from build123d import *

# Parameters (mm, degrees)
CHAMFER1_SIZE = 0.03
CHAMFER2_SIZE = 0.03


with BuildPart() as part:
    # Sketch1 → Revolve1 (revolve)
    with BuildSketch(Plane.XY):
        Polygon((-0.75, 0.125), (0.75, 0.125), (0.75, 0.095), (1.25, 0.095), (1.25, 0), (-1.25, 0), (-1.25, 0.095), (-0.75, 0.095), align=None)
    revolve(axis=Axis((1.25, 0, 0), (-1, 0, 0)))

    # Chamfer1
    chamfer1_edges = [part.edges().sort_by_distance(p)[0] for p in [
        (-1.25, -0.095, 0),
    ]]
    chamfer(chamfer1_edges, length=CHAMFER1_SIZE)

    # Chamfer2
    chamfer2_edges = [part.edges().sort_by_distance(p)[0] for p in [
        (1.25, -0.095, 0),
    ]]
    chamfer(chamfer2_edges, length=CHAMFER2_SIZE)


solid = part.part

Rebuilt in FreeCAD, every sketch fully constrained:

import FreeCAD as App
import Part
import Sketcher

V = App.Vector


def edges_at(feature, points):
    """Names of the edges that pass closest to the given points."""
    edges = feature.Shape.Edges
    near = lambda p: min(range(len(edges)), key=lambda i: edges[i].distToShape(Part.Vertex(*p))[0])
    return sorted({f"Edge{near(p) + 1}" for p in points})


def add_polygon(sketch, points):
    """Adds a closed chain of lines whose ends are joined by coincident constraints."""
    first, n = sketch.GeometryCount, len(points)
    for a, b in zip(points, points[1:] + points[:1]):
        sketch.addGeometry(Part.LineSegment(App.Vector(*a, 0), App.Vector(*b, 0)), False)
    for i in range(n):
        sketch.addConstraint(Sketcher.Constraint("Coincident", first + i, 2, first + (i + 1) % n, 1))

doc = App.newDocument("Part")
body = doc.addObject("PartDesign::Body", "Body")

sketch1 = body.newObject("Sketcher::SketchObject", "Sketch")
sketch1.AttachmentSupport = (doc.getObject("XY_Plane"), [""])
sketch1.MapMode = "FlatFace"
add_polygon(sketch1, [(0.75, 0.125), (-0.75, 0.125), (-0.75, 0.095), (-1.25, 0.095), (-1.25, 0), (1.25, 0), (1.25, 0.095), (0.75, 0.095)])
sketch1.addConstraint([
    Sketcher.Constraint("Horizontal", 0),
    Sketcher.Constraint("Vertical", 1),
    Sketcher.Constraint("Horizontal", 2),
    Sketcher.Constraint("Vertical", 3),
    Sketcher.Constraint("Horizontal", 4),
    Sketcher.Constraint("Vertical", 5),
    Sketcher.Constraint("Horizontal", 6),
    Sketcher.Constraint("Vertical", 7),
    Sketcher.Constraint("Symmetric", 3, 2, 4, 2, -1, 1),
    Sketcher.Constraint("Symmetric", 1, 2, 6, 2, -2),
    Sketcher.Constraint("DistanceX", 0, 2, 0, 1, 1.5),
    Sketcher.Constraint("DistanceX", 2, 2, 2, 1, 0.5),
    Sketcher.Constraint("DistanceY", 1, 2, 1, 1, 0.03),
    Sketcher.Constraint("DistanceY", 3, 2, 3, 1, 0.095),
])
revolution = body.newObject("PartDesign::Revolution", "Revolution")
revolution.Profile = sketch1
revolution.ReferenceAxis = (sketch1, ["H_Axis"])
revolution.Angle = 360
doc.recompute()

chamfer = body.newObject("PartDesign::Chamfer", "Chamfer")
chamfer.Base = (revolution, edges_at(revolution, [(-1.25, -0.095, 0)]))
chamfer.Size = 0.03
doc.recompute()

chamfer2 = body.newObject("PartDesign::Chamfer", "Chamfer001")
chamfer2.Base = (chamfer, edges_at(chamfer, [(1.25, -0.095, 0)]))
chamfer2.Size = 0.03

doc.recompute()
